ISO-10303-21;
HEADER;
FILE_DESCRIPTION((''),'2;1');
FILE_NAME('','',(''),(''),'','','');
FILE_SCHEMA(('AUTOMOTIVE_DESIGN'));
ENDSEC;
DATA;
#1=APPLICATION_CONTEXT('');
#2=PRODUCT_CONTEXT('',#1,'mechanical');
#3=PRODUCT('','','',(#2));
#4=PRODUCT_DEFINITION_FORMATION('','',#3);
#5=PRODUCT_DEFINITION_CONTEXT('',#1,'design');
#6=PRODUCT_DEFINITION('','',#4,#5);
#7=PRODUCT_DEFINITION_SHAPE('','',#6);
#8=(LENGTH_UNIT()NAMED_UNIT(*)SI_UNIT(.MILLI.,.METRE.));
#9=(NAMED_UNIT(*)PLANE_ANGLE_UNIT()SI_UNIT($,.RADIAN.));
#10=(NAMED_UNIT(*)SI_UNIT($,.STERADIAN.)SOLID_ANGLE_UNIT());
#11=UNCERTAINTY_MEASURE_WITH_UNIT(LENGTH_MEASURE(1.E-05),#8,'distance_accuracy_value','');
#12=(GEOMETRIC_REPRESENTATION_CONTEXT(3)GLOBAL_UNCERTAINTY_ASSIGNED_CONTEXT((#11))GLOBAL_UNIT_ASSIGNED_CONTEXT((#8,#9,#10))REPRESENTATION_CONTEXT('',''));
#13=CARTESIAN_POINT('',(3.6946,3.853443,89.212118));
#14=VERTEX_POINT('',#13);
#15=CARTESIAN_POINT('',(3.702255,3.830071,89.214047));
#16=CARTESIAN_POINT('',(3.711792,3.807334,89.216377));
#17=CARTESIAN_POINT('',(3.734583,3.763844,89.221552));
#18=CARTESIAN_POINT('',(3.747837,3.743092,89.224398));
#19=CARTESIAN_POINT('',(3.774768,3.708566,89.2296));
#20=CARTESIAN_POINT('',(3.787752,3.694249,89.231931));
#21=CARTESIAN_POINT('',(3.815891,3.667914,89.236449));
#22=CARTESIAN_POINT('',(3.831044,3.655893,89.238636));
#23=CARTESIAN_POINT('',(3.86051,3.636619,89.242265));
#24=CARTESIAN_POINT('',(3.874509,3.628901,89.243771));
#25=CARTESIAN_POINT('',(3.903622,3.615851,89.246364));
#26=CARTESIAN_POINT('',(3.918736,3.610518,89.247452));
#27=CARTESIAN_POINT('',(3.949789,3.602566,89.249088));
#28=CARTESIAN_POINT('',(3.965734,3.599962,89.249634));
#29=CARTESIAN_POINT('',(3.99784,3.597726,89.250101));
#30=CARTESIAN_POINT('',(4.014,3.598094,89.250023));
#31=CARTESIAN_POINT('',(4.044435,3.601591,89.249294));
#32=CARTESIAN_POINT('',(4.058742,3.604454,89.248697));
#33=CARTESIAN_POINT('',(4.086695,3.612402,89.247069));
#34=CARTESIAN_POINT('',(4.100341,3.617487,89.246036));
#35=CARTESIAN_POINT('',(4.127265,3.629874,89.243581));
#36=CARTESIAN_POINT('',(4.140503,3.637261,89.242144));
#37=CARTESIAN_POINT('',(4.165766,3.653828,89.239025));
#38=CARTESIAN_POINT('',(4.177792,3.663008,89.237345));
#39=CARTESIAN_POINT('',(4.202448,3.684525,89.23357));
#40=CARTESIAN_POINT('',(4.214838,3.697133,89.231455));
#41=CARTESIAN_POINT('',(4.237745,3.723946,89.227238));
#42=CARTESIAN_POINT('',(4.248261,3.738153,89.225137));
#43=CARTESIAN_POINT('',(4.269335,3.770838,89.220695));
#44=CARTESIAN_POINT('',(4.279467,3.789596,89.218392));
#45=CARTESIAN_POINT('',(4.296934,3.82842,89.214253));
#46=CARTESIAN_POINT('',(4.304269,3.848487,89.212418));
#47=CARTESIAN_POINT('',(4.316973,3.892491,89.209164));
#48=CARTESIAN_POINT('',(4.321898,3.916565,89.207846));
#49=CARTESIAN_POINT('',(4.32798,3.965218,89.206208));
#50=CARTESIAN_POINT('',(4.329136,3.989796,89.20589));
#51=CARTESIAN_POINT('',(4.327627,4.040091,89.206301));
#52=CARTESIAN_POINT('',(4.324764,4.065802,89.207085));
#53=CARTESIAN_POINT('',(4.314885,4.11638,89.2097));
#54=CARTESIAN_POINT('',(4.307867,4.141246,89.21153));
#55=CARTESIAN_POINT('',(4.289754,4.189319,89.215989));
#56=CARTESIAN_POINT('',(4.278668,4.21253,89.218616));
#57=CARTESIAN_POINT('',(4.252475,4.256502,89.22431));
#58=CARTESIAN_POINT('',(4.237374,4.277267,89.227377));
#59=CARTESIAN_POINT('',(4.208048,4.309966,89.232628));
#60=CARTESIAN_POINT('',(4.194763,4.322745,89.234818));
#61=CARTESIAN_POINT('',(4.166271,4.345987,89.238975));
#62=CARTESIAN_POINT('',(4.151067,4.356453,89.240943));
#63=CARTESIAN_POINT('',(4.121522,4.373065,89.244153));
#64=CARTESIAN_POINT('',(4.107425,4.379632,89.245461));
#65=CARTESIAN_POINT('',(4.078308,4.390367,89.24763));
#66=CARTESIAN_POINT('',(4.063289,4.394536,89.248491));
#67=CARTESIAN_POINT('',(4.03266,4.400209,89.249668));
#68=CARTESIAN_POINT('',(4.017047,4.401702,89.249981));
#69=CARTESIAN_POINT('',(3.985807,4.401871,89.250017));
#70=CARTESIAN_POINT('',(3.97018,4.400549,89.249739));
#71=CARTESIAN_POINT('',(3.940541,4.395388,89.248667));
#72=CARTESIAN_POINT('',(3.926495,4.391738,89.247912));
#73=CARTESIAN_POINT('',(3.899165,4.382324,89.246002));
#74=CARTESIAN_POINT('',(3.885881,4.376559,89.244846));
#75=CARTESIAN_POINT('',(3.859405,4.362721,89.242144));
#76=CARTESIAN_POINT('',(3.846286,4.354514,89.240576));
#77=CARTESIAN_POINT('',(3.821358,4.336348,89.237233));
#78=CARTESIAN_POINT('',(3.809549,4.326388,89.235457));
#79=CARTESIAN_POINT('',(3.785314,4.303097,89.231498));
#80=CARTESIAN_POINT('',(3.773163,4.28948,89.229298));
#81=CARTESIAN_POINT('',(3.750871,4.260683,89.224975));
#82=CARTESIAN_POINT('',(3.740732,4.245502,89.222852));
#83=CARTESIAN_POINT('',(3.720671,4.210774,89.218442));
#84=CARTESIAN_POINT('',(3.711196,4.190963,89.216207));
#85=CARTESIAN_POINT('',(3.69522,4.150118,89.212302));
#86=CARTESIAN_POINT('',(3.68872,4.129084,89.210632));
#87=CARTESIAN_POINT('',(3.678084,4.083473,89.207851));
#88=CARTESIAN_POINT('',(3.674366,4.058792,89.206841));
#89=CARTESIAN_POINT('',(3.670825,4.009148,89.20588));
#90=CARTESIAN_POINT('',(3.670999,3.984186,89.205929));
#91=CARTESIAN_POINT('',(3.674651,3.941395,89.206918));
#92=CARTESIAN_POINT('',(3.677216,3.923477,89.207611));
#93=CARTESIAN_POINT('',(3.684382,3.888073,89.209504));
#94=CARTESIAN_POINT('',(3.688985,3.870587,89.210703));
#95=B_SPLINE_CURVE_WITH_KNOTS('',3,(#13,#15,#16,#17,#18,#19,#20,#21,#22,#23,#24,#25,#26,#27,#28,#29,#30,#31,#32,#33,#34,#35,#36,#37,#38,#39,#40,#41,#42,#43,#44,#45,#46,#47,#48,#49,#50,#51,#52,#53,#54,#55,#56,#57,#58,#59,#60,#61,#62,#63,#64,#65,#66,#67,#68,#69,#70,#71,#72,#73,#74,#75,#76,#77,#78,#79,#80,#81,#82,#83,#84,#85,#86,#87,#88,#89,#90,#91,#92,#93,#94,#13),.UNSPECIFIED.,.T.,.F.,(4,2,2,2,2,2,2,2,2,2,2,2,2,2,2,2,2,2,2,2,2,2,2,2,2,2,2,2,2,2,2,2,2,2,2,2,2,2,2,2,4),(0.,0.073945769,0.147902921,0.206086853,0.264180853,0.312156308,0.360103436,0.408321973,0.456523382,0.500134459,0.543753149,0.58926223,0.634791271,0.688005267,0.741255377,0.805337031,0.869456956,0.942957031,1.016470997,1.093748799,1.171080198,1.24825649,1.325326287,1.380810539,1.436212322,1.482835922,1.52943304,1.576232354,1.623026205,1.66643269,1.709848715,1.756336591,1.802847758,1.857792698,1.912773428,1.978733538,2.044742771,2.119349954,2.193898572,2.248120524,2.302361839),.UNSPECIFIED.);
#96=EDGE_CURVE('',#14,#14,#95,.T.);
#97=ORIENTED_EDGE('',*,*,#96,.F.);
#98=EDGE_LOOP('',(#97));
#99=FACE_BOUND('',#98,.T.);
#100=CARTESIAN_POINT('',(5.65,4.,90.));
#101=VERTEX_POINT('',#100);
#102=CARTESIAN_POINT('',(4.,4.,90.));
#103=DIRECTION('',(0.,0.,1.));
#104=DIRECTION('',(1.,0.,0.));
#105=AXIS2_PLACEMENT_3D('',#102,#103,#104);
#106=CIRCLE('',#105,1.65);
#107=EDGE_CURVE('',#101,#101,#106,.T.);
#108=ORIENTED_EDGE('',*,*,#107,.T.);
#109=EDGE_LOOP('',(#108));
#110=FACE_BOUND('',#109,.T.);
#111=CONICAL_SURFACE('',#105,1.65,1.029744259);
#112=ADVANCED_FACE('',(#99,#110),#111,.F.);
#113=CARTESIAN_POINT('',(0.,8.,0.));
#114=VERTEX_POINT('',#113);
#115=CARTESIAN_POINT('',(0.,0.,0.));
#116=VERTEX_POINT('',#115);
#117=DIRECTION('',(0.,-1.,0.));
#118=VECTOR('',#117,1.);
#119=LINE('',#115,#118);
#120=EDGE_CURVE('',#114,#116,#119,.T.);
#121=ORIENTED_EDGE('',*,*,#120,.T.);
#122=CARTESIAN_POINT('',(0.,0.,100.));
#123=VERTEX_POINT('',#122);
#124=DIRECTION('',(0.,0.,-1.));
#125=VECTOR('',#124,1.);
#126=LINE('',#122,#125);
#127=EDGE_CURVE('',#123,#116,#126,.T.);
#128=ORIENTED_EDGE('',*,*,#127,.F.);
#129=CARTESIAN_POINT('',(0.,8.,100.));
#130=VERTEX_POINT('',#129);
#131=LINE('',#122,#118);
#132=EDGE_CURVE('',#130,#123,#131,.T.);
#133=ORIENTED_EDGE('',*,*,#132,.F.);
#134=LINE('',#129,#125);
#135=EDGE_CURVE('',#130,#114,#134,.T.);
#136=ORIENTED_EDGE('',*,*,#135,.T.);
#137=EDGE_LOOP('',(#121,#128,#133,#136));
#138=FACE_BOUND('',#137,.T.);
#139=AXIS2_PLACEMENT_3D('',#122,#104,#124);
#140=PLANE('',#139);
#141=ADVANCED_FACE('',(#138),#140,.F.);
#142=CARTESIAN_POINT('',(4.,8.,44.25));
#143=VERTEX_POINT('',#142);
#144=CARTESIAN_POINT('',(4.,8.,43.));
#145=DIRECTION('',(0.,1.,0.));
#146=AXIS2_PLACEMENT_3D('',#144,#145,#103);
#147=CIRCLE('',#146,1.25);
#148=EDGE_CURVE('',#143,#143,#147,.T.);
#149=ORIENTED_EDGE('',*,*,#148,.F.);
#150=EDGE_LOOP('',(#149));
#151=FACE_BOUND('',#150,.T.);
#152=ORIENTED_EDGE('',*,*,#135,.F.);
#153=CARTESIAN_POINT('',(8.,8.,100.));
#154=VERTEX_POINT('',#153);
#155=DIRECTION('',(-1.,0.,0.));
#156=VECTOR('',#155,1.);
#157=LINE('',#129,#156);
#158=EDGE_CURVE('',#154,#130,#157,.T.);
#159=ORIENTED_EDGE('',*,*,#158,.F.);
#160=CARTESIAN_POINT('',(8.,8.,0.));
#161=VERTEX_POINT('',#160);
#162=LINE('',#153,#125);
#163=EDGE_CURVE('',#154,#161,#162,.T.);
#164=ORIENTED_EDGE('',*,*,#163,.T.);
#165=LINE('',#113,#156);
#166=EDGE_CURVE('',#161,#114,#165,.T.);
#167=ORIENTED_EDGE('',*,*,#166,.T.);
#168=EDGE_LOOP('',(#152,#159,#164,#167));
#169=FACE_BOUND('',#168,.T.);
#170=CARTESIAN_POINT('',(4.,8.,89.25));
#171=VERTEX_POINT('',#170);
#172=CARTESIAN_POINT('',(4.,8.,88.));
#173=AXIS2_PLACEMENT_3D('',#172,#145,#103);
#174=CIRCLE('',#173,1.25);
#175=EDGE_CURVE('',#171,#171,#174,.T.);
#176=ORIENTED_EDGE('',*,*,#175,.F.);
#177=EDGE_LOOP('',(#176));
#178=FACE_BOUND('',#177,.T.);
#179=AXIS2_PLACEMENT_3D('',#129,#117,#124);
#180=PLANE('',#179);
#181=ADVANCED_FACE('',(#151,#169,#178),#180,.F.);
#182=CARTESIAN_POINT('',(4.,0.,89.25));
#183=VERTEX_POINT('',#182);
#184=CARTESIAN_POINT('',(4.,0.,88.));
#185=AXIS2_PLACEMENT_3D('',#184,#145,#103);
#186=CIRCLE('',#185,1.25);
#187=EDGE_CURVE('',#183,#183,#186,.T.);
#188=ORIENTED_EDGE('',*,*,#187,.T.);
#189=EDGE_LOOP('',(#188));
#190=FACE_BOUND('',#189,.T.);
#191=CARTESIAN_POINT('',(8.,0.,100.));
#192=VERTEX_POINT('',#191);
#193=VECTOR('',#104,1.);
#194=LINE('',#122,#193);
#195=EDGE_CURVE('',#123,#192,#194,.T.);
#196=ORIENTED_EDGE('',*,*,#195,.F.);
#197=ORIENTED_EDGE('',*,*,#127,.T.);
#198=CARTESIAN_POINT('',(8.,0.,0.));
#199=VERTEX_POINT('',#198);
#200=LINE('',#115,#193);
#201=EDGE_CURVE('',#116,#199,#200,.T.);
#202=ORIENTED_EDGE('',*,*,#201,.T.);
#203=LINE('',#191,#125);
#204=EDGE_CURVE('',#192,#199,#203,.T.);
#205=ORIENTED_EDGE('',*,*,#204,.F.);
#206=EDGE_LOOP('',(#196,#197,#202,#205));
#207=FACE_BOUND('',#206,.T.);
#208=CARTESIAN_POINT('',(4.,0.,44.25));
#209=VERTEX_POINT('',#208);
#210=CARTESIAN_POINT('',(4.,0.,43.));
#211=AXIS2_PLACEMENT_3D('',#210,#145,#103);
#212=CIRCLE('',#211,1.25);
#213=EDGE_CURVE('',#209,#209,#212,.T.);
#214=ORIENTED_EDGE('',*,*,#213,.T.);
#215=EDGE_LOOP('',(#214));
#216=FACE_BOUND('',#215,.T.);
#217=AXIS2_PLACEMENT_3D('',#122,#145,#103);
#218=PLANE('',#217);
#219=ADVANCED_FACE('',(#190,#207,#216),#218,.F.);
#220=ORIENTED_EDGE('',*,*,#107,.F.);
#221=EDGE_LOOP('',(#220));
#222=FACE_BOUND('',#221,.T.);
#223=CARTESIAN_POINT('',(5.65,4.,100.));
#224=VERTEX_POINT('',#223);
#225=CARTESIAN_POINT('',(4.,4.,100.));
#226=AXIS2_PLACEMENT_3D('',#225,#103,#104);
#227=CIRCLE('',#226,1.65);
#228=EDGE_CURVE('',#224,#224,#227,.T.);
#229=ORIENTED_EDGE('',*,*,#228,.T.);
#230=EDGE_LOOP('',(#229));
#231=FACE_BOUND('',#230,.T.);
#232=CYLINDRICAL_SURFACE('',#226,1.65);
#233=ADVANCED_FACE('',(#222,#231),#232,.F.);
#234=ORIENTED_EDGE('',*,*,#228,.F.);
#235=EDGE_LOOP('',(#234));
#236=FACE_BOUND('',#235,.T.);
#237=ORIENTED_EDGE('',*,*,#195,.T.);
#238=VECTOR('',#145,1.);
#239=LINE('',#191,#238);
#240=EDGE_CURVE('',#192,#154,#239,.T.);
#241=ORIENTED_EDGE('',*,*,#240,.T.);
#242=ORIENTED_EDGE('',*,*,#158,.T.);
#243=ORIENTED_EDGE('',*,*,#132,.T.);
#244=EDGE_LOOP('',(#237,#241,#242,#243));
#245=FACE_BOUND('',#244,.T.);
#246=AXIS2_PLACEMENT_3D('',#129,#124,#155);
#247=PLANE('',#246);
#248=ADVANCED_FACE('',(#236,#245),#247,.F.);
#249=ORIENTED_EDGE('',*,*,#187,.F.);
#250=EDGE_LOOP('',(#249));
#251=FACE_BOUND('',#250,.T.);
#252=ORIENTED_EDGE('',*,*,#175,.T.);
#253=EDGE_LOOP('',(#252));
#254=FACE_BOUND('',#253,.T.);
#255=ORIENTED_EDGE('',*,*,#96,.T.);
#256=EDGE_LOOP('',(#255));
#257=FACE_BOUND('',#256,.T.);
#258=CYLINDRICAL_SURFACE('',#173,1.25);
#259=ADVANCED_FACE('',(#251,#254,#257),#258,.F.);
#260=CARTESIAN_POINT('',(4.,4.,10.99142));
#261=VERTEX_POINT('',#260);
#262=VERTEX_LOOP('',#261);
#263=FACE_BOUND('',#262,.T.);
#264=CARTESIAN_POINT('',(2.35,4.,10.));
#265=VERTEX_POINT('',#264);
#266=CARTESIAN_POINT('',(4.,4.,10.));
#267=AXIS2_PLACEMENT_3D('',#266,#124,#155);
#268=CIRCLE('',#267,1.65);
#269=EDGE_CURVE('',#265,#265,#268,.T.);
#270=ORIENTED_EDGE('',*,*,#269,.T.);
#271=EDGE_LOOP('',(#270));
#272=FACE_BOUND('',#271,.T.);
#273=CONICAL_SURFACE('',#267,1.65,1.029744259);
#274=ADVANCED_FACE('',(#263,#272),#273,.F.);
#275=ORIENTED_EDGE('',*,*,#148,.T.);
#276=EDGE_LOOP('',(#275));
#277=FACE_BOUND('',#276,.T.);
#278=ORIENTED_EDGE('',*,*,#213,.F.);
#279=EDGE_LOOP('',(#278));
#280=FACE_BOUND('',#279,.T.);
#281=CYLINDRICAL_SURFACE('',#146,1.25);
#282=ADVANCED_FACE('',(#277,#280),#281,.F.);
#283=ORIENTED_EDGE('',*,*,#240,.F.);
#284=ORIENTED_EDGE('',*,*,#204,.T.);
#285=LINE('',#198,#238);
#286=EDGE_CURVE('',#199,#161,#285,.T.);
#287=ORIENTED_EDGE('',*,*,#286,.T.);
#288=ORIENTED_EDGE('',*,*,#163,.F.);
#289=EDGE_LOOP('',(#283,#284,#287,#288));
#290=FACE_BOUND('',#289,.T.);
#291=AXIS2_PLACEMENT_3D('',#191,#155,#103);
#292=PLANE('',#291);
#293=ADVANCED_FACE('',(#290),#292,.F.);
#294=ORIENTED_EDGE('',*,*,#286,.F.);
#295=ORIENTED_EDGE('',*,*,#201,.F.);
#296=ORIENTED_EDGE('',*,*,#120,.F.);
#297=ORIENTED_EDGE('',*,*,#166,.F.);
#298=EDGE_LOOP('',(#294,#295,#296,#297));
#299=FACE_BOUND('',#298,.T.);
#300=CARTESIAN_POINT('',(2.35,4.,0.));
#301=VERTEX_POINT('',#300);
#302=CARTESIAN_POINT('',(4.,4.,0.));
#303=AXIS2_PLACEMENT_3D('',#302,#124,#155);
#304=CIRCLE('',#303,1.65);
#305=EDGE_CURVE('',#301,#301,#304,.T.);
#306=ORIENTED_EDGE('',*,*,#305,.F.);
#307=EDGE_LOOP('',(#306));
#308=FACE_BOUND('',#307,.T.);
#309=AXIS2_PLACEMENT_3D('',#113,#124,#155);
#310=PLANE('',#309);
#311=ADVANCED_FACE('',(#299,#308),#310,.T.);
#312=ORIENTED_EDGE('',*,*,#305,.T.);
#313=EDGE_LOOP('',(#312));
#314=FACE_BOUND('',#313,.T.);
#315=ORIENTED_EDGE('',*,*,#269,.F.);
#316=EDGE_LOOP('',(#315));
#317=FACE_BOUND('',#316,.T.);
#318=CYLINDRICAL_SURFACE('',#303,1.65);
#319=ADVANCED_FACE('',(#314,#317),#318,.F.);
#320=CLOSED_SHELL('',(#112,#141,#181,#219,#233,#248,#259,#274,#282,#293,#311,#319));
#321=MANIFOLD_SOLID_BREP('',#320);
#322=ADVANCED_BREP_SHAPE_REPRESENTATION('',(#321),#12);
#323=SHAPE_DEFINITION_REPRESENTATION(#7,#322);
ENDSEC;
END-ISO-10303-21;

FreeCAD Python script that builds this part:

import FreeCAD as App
import Part
import Sketcher


def add_polygon(sketch, points):
    """Adds a closed chain of lines whose ends are joined by coincident constraints."""
    first, n = sketch.GeometryCount, len(points)
    for a, b in zip(points, points[1:] + points[:1]):
        sketch.addGeometry(Part.LineSegment(App.Vector(*a, 0), App.Vector(*b, 0)), False)
    for i in range(n):
        sketch.addConstraint(Sketcher.Constraint("Coincident", first + i, 2, first + (i + 1) % n, 1))

doc = App.newDocument("Part")
params = doc.addObject("Spreadsheet::Sheet", "Params")
for row, (alias, value) in enumerate([
    ("sketch1_width", "8 mm"),
    ("pad1_length", "100 mm"),
    ("sketch2_diameter", "2.5 mm"),
    ("hole_diameter", "2.5 mm"),
    ("sketch3_diameter", "3.3 mm"),
    ("hole2_diameter", "3.3 mm"),
    ("hole2_depth", "10 mm"),
    ("sketch4_diameter", "3.3 mm"),
    ("hole3_diameter", "3.3 mm"),
    ("hole3_depth", "10 mm"),
], start=1):
    params.set(f"A{row}", alias)
    params.set(f"B{row}", "=" + value)
    params.setAlias(f"B{row}", alias)

body = doc.addObject("PartDesign::Body", "Body")

sketch1 = body.newObject("Sketcher::SketchObject", "Sketch")
sketch1.AttachmentSupport = (doc.getObject("XY_Plane"), [""])
sketch1.MapMode = "FlatFace"
add_polygon(sketch1, [(0, 8), (0, 0), (8, 0), (8, 8)])
sketch1.addConstraint([
    Sketcher.Constraint("Vertical", 0),
    Sketcher.Constraint("Horizontal", 1),
    Sketcher.Constraint("Vertical", 2),
    Sketcher.Constraint("Horizontal", 3),
    Sketcher.Constraint("Coincident", 0, 2, -1, 1),
    Sketcher.Constraint("Equal", 3, 0),
    Sketcher.Constraint("DistanceX", 1, 1, 1, 2, 8.0),
])
sketch1.setExpression("Constraints[10]", "Params.sketch1_width")
pad1 = body.newObject("PartDesign::Pad", "Pad")
pad1.Profile = sketch1
pad1.setExpression("Length", "Params.pad1_length")

sketch2 = body.newObject("Sketcher::SketchObject", "Sketch001")
sketch2.AttachmentSupport = (doc.getObject("XZ_Plane"), [""])
sketch2.MapMode = "FlatFace"
sketch2.AttachmentOffset = App.Placement(App.Vector(0, 0, -8), App.Rotation())
sketch2.addGeometry([
    Part.Circle(App.Vector(4, 88, 0), App.Vector(0, 0, 1), 1.2),
    Part.Circle(App.Vector(4, 43, 0), App.Vector(0, 0, 1), 1.2),
], False)
sketch2.addConstraint([
    Sketcher.Constraint("Equal", 0, 1),
    Sketcher.Constraint("Vertical", 0, 3, 1, 3),
    Sketcher.Constraint("Diameter", 0, 2.5),
    Sketcher.Constraint("DistanceX", -1, 1, 0, 3, 4.0),
    Sketcher.Constraint("DistanceY", -1, 1, 0, 3, 88.0),
    Sketcher.Constraint("DistanceY", -1, 1, 1, 3, 43.0),
])
sketch2.setExpression("Constraints[2]", "Params.sketch2_diameter")
doc.recompute()
hole = body.newObject("PartDesign::Hole", "Hole")
hole.Profile = sketch2
hole.ThreadType = "None"
hole.setExpression("Diameter", "Params.hole_diameter")
hole.DepthType = "ThroughAll"
hole.Reversed = True

sketch3 = body.newObject("Sketcher::SketchObject", "Sketch002")
sketch3.AttachmentSupport = (doc.getObject("XY_Plane"), [""])
sketch3.MapMode = "FlatFace"
sketch3.AttachmentOffset = App.Placement(App.Vector(0, 0, 100), App.Rotation())
sketch3.addGeometry(Part.Circle(App.Vector(4, 4, 0), App.Vector(0, 0, 1), 1.6), False)
sketch3.addConstraint([
    Sketcher.Constraint("Diameter", 0, 3.3),
    Sketcher.Constraint("DistanceX", -1, 1, 0, 3, 4.0),
    Sketcher.Constraint("DistanceY", -1, 1, 0, 3, 4.0),
])
sketch3.setExpression("Constraints[0]", "Params.sketch3_diameter")
doc.recompute()
hole2 = body.newObject("PartDesign::Hole", "Hole001")
hole2.Profile = sketch3
hole2.ThreadType = "None"
hole2.setExpression("Diameter", "Params.hole2_diameter")
hole2.DepthType = "Dimension"
hole2.setExpression("Depth", "Params.hole2_depth")
hole2.DrillPoint = "Angled"
hole2.DrillPointAngle = 118

sketch4 = body.newObject("Sketcher::SketchObject", "Sketch003")
sketch4.AttachmentSupport = (doc.getObject("XY_Plane"), [""])
sketch4.MapMode = "FlatFace"
sketch4.addGeometry(Part.Circle(App.Vector(4, 4, 0), App.Vector(0, 0, 1), 1.6), False)
sketch4.addConstraint([
    Sketcher.Constraint("Diameter", 0, 3.3),
    Sketcher.Constraint("DistanceX", -1, 1, 0, 3, 4.0),
    Sketcher.Constraint("DistanceY", -1, 1, 0, 3, 4.0),
])
sketch4.setExpression("Constraints[0]", "Params.sketch4_diameter")
doc.recompute()
hole3 = body.newObject("PartDesign::Hole", "Hole002")
hole3.Profile = sketch4
hole3.ThreadType = "None"
hole3.setExpression("Diameter", "Params.hole3_diameter")
hole3.DepthType = "Dimension"
hole3.setExpression("Depth", "Params.hole3_depth")
hole3.DrillPoint = "Angled"
hole3.DrillPointAngle = 118
hole3.Reversed = True

doc.recompute()
